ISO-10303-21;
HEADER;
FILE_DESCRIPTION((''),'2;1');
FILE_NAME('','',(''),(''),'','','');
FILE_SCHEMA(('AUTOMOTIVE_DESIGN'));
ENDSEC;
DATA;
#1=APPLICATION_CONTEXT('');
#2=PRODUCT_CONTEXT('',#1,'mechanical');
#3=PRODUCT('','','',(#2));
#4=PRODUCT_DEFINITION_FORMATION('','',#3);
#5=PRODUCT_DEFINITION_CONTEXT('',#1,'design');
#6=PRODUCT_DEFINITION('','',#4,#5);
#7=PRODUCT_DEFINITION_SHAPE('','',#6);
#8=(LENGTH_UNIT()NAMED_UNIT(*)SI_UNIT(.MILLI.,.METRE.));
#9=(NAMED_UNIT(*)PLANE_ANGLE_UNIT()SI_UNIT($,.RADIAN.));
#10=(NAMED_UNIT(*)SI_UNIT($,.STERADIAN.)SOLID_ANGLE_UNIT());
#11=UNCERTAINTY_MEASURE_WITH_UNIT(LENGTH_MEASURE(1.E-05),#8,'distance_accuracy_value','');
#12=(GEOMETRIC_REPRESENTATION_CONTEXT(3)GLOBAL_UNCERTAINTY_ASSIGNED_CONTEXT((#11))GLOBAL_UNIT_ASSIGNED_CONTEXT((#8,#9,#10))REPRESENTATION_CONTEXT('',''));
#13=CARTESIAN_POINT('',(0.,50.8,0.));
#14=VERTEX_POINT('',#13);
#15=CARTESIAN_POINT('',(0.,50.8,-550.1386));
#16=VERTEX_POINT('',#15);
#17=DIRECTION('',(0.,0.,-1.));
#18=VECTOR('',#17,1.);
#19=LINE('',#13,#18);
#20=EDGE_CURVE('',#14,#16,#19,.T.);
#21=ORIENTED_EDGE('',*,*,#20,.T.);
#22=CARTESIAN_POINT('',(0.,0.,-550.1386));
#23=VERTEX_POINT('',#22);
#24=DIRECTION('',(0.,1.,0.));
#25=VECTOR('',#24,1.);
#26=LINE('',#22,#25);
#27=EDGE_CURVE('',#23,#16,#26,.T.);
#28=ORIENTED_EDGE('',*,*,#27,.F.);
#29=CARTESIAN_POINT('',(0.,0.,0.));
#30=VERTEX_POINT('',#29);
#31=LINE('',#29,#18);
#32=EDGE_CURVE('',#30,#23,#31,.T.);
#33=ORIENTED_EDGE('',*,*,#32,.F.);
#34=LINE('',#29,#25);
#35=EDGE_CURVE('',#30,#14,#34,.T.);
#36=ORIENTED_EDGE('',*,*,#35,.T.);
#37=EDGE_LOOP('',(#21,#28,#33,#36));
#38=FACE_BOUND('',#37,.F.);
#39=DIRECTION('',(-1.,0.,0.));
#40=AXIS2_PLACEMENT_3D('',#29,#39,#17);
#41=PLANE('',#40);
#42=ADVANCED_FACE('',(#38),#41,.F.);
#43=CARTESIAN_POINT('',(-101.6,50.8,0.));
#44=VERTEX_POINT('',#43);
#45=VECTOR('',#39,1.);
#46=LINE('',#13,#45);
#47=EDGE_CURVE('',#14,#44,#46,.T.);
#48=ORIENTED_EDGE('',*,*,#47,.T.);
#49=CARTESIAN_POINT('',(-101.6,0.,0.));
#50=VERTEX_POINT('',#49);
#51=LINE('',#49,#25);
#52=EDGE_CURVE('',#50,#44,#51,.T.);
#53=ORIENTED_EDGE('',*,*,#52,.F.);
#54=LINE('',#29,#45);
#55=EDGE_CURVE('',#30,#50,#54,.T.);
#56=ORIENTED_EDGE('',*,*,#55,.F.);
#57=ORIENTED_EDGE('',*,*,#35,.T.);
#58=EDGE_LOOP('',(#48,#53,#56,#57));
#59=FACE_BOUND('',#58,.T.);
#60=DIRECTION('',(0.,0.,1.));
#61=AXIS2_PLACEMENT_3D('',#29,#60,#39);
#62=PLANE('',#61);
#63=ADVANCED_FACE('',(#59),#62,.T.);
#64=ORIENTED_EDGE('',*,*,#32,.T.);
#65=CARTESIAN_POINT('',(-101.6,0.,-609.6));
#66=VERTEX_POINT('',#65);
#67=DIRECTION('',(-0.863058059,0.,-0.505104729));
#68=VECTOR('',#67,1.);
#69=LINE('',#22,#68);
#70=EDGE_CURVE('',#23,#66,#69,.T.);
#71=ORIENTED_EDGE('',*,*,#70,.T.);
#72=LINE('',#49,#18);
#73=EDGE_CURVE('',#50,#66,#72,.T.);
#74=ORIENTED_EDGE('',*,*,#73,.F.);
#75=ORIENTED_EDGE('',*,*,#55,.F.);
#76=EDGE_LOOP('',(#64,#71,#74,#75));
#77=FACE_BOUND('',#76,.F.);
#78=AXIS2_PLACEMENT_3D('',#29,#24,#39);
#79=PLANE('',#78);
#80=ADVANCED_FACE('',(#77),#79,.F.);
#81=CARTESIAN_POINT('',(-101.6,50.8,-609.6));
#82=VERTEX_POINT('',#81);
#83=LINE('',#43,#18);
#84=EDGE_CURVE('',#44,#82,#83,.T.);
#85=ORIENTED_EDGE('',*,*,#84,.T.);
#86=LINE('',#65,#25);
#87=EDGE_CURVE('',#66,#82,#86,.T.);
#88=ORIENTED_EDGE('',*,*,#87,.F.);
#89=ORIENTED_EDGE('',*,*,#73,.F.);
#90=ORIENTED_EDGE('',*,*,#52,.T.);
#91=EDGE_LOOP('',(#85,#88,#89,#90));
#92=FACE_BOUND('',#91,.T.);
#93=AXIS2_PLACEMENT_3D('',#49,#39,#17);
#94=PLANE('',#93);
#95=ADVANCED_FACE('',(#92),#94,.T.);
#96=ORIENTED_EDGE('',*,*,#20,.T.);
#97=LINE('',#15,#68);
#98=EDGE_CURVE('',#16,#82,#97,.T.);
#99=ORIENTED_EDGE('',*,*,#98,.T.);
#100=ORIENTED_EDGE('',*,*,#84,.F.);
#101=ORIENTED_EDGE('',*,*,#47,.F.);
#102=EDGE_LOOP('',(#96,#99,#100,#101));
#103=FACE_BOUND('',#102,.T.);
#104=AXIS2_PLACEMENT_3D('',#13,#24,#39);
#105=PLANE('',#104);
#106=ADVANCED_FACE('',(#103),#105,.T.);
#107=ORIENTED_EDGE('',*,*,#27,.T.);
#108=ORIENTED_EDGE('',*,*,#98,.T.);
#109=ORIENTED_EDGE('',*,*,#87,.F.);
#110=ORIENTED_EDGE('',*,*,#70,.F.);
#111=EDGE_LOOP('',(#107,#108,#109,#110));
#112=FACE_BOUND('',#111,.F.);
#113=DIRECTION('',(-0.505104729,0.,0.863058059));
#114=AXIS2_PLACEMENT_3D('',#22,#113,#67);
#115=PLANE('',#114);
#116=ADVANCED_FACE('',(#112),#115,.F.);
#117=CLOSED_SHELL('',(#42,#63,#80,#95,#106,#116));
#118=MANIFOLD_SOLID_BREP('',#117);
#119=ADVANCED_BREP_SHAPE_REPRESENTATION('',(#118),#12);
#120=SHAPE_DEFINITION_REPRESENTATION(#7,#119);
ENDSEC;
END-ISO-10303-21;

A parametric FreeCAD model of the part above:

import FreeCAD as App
import Part
import Sketcher
Q = App.Units.Quantity


def add_polygon(sketch, points):
    """Adds a closed chain of lines whose ends are joined by coincident constraints."""
    first, n = sketch.GeometryCount, len(points)
    for a, b in zip(points, points[1:] + points[:1]):
        sketch.addGeometry(Part.LineSegment(App.Vector(*a, 0), App.Vector(*b, 0)), False)
    for i in range(n):
        sketch.addConstraint(Sketcher.Constraint("Coincident", first + i, 2, first + (i + 1) % n, 1))

doc = App.newDocument("Part")
body = doc.addObject("PartDesign::Body", "Body")

# Sketch on XZ plane
sketch1 = doc.addObject("Sketcher::SketchObject", "Sketch")
body.addObject(sketch1)
sketch1.AttachmentSupport = (doc.XZ_Plane, [""])
sketch1.MapMode = "FlatFace"
add_polygon(sketch1, [(-101.6, 0), (0, 0), (0, -550.1386), (-101.6, -609.6)])  # lines 0-3
sketch1.addConstraint([
    Sketcher.Constraint("Horizontal", 0),
    Sketcher.Constraint("Vertical", 1),
    Sketcher.Constraint("Vertical", 3),
    Sketcher.Constraint("Coincident", 0, 2, -1, 1),
    Sketcher.Constraint("DistanceY", 3, 1, 3, 2, Q("24 in")),
    Sketcher.Constraint("DistanceX", 0, 1, 0, 2, Q("4 in")),
    Sketcher.Constraint("DistanceY", 2, 2, 1, 2, Q("2.341 in")),
])
pad1 = doc.addObject("PartDesign::Pad", "Pad")
body.addObject(pad1)
pad1.Profile = sketch1
pad1.Length = Q("2 in")
pad1.Reversed = True

doc.recompute()
